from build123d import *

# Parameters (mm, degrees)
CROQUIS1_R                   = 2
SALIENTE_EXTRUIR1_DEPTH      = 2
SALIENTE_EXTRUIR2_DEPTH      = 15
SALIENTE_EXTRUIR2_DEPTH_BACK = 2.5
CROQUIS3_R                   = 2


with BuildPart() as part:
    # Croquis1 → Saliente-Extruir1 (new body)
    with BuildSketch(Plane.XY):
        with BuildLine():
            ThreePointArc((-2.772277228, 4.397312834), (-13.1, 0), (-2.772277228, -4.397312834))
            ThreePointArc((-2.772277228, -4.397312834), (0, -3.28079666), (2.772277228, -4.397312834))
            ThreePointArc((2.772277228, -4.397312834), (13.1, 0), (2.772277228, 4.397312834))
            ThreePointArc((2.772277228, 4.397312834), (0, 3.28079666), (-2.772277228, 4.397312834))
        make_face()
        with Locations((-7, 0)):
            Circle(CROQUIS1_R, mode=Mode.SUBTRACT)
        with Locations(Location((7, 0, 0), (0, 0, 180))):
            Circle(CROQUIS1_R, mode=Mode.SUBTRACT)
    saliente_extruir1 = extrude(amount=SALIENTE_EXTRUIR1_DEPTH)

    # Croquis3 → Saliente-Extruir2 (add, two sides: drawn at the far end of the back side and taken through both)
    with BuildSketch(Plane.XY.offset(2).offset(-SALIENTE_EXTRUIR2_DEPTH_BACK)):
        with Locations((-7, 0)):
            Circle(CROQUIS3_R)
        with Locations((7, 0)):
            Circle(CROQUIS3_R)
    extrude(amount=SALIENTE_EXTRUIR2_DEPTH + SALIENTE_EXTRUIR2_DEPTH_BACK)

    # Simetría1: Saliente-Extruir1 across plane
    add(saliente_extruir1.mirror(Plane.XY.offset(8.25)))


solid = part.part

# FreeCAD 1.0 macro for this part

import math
import FreeCAD as App
import Part
import Sketcher

V = App.Vector
Q = App.Units.Quantity

doc = App.newDocument("Part")
body = doc.addObject("PartDesign::Body", "Body")

# Sketch on XY plane
sketch1 = body.newObject("Sketcher::SketchObject", "Sketch")
sketch1.AttachmentSupport = (doc.getObject("XY_Plane"), [""])
sketch1.MapMode = "FlatFace"
sketch1.addGeometry([
    Part.ArcOfCircle(Part.Circle(V(-7, 0, 0), V(0, 0, 1), 6.1), math.radians(46), math.radians(314)),  # 0
    Part.ArcOfCircle(Part.Circle(V(0, -7.3, 0), V(0, 0, 1), 4), math.radians(46), math.radians(134)),  # 1
    Part.ArcOfCircle(Part.Circle(V(7, 0, 0), V(0, 0, 1), 6.1), math.radians(-134), math.radians(134)),  # 2
    Part.ArcOfCircle(Part.Circle(V(0, 7.3, 0), V(0, 0, 1), 4), math.radians(-134), math.radians(-46)),  # 3
    Part.Circle(V(-7, 0, 0), V(0, 0, 1), 2),  # 4
    Part.Circle(V(7, 0, 0), V(0, 0, 1), 2),  # 5
], False)
sketch1.addConstraint([
    Sketcher.Constraint("Tangent", 0, 2, 1, 2),
    Sketcher.Constraint("Tangent", 1, 1, 2, 1),
    Sketcher.Constraint("Tangent", 2, 2, 3, 2),
    Sketcher.Constraint("Tangent", 3, 1, 0, 1),
    Sketcher.Constraint("Coincident", 4, 3, 0, 3),
    Sketcher.Constraint("Coincident", 5, 3, 2, 3),
    Sketcher.Constraint("Equal", 0, 2),
    Sketcher.Constraint("Equal", 1, 3),
    Sketcher.Constraint("Equal", 4, 5),
    Sketcher.Constraint("Symmetric", 0, 3, 2, 3, -1, 1),
    Sketcher.Constraint("PointOnObject", 0, 3, -1),
    Sketcher.Constraint("Diameter", 4, Q("4 mm")),
    Sketcher.Constraint("Radius", 1, Q("4 mm")),
    Sketcher.Constraint("Radius", 0, Q("6.1 mm")),
    Sketcher.Constraint("DistanceX", 0, 3, -1, 1, Q("7 mm")),
])
pad1 = body.newObject("PartDesign::Pad", "Pad")
pad1.Profile = sketch1
pad1.Length = 2

# Sketch on XY plane
sketch2 = body.newObject("Sketcher::SketchObject", "Sketch001")
sketch2.AttachmentSupport = (doc.getObject("XY_Plane"), [""])
sketch2.MapMode = "FlatFace"
sketch2.AttachmentOffset = App.Placement(V(0, 0, 2), App.Rotation())
sketch2.addGeometry([
    Part.Circle(V(-7, 0, 0), V(0, 0, 1), 2),
    Part.Circle(V(7, 0, 0), V(0, 0, 1), 2),
], False)
sketch2.addConstraint([
    Sketcher.Constraint("Equal", 0, 1),
    Sketcher.Constraint("Symmetric", 0, 3, 1, 3, -1, 1),
    Sketcher.Constraint("PointOnObject", 0, 3, -1),
    Sketcher.Constraint("Diameter", 0, Q("4 mm")),
    Sketcher.Constraint("DistanceX", 0, 3, -1, 1, Q("7 mm")),
])
pad2 = body.newObject("PartDesign::Pad", "Pad001")
pad2.Profile = sketch2
pad2.Type = "TwoLengths"
pad2.Length = 15
pad2.Length2 = 2.5
doc.recompute()

datumplane = body.newObject("PartDesign::Plane", "DatumPlane")
datumplane.AttachmentSupport = (doc.getObject("XY_Plane"), [""])
datumplane.MapMode = "FlatFace"
datumplane.AttachmentOffset = App.Placement(V(0, 0, 8.25), App.Rotation())
mirrored = body.newObject("PartDesign::Mirrored", "Mirrored")
mirrored.Originals = [pad1]
mirrored.MirrorPlane = (datumplane, [""])
body.Tip = mirrored

doc.recompute()
